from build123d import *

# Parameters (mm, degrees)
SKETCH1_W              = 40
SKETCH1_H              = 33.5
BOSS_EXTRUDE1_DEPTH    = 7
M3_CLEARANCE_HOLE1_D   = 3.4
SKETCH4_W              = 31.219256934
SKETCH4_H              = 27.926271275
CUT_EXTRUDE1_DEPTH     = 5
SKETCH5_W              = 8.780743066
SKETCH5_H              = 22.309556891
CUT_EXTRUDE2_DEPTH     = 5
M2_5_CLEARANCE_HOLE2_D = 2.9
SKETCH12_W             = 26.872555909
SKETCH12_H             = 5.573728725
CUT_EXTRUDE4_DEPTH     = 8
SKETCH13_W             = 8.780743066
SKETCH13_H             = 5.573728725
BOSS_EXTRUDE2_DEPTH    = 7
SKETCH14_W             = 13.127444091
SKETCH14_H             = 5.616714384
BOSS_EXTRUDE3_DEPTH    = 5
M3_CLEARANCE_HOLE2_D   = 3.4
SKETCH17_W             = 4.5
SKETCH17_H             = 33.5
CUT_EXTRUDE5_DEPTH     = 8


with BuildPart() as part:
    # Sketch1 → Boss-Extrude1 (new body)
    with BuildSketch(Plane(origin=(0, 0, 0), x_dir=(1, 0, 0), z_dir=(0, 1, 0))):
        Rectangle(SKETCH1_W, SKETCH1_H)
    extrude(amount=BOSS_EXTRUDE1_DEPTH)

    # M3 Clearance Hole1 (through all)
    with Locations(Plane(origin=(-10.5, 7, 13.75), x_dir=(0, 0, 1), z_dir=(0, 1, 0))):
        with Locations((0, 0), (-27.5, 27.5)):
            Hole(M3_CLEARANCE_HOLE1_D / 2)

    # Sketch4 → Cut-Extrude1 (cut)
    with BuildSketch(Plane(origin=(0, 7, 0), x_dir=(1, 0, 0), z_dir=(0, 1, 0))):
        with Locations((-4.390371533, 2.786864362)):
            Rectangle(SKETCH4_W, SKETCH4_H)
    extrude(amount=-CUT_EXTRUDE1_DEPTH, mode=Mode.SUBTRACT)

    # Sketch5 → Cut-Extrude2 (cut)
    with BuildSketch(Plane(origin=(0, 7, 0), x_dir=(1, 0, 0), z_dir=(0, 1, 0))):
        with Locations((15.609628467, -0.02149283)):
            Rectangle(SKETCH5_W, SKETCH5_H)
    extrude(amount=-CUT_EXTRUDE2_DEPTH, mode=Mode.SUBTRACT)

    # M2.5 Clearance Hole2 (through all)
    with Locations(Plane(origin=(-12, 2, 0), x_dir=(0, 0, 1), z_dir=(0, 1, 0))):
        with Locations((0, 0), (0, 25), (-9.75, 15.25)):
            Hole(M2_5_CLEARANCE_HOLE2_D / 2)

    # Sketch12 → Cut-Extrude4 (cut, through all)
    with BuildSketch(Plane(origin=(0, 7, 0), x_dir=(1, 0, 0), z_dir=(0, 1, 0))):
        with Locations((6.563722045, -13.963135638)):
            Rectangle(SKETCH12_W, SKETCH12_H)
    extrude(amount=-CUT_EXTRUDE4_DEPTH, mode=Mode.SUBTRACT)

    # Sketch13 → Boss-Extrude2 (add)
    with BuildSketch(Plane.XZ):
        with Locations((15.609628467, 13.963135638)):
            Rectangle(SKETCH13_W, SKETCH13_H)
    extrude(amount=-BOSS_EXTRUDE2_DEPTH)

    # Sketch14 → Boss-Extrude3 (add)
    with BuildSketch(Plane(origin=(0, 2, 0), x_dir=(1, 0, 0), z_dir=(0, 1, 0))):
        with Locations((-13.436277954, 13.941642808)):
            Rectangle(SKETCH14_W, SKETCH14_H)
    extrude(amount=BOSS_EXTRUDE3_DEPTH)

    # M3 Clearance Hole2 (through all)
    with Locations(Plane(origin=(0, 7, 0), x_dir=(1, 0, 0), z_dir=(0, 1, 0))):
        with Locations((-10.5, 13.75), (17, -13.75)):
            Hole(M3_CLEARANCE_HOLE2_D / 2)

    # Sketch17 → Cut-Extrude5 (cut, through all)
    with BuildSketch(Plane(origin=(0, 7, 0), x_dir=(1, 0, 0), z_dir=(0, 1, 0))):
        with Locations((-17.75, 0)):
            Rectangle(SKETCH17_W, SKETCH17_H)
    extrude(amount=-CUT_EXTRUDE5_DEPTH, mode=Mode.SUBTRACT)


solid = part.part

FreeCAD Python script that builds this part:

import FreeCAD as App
import Part
import Sketcher
from FreeCAD import Vector

doc = App.newDocument("Part")
params = doc.addObject("Spreadsheet::Sheet", "Params")
for row, (alias, value) in enumerate([
    ("sketch1_width", "40 mm"),
    ("sketch1_height", "33.5 mm"),
    ("pad1_length", "7 mm"),
    ("sketch2_diameter", "3.4 mm"),
    ("hole_diameter", "3.4 mm"),
    ("pocket1_length", "5 mm"),
    ("pocket2_length", "5 mm"),
    ("sketch5_diameter", "2.9 mm"),
    ("hole2_diameter", "2.9 mm"),
    ("pad2_length", "7 mm"),
    ("pad3_length", "5 mm"),
    ("sketch9_diameter", "3.4 mm"),
    ("hole3_diameter", "3.4 mm"),
    ("sketch10_width", "4.5 mm"),
    ("sketch10_height", "33.5 mm"),
], start=1):
    params.set(f"A{row}", alias)
    params.set(f"B{row}", "=" + value)
    params.setAlias(f"B{row}", alias)

body = doc.addObject("PartDesign::Body", "Body")

# Sketch on XZ plane
sketch1 = body.newObject("Sketcher::SketchObject", "Sketch")
sketch1.AttachmentSupport = (doc.getObject("XZ_Plane"), [""])
sketch1.MapMode = "FlatFace"
sketch1.addGeometry([
    Part.LineSegment(Vector(-20, -17, 0), Vector(-20, 17, 0)),
    Part.LineSegment(Vector(-20, 17, 0), Vector(20, 17, 0)),
    Part.LineSegment(Vector(20, 17, 0), Vector(20, -17, 0)),
    Part.LineSegment(Vector(20, -17, 0), Vector(-20, -17, 0)),
], False)
sketch1.addConstraint([
    Sketcher.Constraint("Coincident", 0, 2, 1, 1),
    Sketcher.Constraint("Coincident", 1, 2, 2, 1),
    Sketcher.Constraint("Coincident", 2, 2, 3, 1),
    Sketcher.Constraint("Coincident", 3, 2, 0, 1),
    Sketcher.Constraint("Vertical", 0),
    Sketcher.Constraint("Horizontal", 1),
    Sketcher.Constraint("Vertical", 2),
    Sketcher.Constraint("Horizontal", 3),
    Sketcher.Constraint("Symmetric", 0, 2, 2, 2, -1, 1),
    Sketcher.Constraint("DistanceX", 1, 1, 1, 2, 40.0),
    Sketcher.Constraint("DistanceY", 0, 1, 0, 2, 33.5),
])
sketch1.setExpression("Constraints[9]", "Params.sketch1_width")
sketch1.setExpression("Constraints[10]", "Params.sketch1_height")
pad1 = body.newObject("PartDesign::Pad", "Pad")
pad1.Profile = sketch1
pad1.setExpression("Length", "Params.pad1_length")
pad1.Reversed = True

# Sketch on XZ plane
sketch2 = body.newObject("Sketcher::SketchObject", "Sketch001")
sketch2.AttachmentSupport = (doc.getObject("XZ_Plane"), [""])
sketch2.MapMode = "FlatFace"
sketch2.AttachmentOffset = App.Placement(Vector(0, 0, -7), App.Rotation())
sketch2.addGeometry([
    Part.Circle(Vector(-10.5, 13.8, 0), Vector(0, 0, 1), 1.7),
    Part.Circle(Vector(17, -13.8, 0), Vector(0, 0, 1), 1.7),
], False)
sketch2.addConstraint([
    Sketcher.Constraint("Equal", 0, 1),
    Sketcher.Constraint("Diameter", 0, 3.4),
    Sketcher.Constraint("DistanceX", -1, 1, 1, 3, 17.0),
    Sketcher.Constraint("DistanceX", 0, 3, -1, 1, 10.5),
    Sketcher.Constraint("DistanceY", 1, 3, 0, 3, 27.5),
    Sketcher.Constraint("DistanceY", -1, 1, 0, 3, 13.75),
])
sketch2.setExpression("Constraints[1]", "Params.sketch2_diameter")
doc.recompute()
hole = body.newObject("PartDesign::Hole", "Hole")
hole.Profile = sketch2
hole.ThreadType = "None"
hole.setExpression("Diameter", "Params.hole_diameter")
hole.DepthType = "ThroughAll"
hole.Reversed = True

# Sketch on XZ plane
sketch3 = body.newObject("Sketcher::SketchObject", "Sketch002")
sketch3.AttachmentSupport = (doc.getObject("XZ_Plane"), [""])
sketch3.MapMode = "FlatFace"
sketch3.AttachmentOffset = App.Placement(Vector(0, 0, -7), App.Rotation())
sketch3.addGeometry([
    Part.LineSegment(Vector(-20, -17, 0), Vector(-20, 11, 0)),
    Part.LineSegment(Vector(-20, 11, 0), Vector(11, 11, 0)),
    Part.LineSegment(Vector(11, 11, 0), Vector(11, -17, 0)),
    Part.LineSegment(Vector(11, -17, 0), Vector(-20, -17, 0)),
], False)
sketch3.addConstraint([
    Sketcher.Constraint("Coincident", 0, 2, 1, 1),
    Sketcher.Constraint("Coincident", 1, 2, 2, 1),
    Sketcher.Constraint("Coincident", 2, 2, 3, 1),
    Sketcher.Constraint("Coincident", 3, 2, 0, 1),
    Sketcher.Constraint("Vertical", 0),
    Sketcher.Constraint("Horizontal", 1),
    Sketcher.Constraint("Vertical", 2),
    Sketcher.Constraint("Horizontal", 3),
    Sketcher.Constraint("DistanceX", 0, 2, -1, 1, 20.0),
    Sketcher.Constraint("DistanceY", 2, 2, -1, 1, 16.75),
    Sketcher.Constraint("DistanceY", 0, 1, 0, 2, 27.926271),
    Sketcher.Constraint("DistanceX", 1, 1, 1, 2, 31.219257),
])
pocket1 = body.newObject("PartDesign::Pocket", "Pocket")
pocket1.Profile = sketch3
pocket1.setExpression("Length", "Params.pocket1_length")
pocket1.Reversed = True

# Sketch on XZ plane
sketch4 = body.newObject("Sketcher::SketchObject", "Sketch003")
sketch4.AttachmentSupport = (doc.getObject("XZ_Plane"), [""])
sketch4.MapMode = "FlatFace"
sketch4.AttachmentOffset = App.Placement(Vector(0, 0, -7), App.Rotation())
sketch4.addGeometry([
    Part.LineSegment(Vector(11, -11, 0), Vector(11, 11, 0)),
    Part.LineSegment(Vector(11, 11, 0), Vector(20, 11, 0)),
    Part.LineSegment(Vector(20, 11, 0), Vector(20, -11, 0)),
    Part.LineSegment(Vector(20, -11, 0), Vector(11, -11, 0)),
], False)
sketch4.addConstraint([
    Sketcher.Constraint("Coincident", 0, 2, 1, 1),
    Sketcher.Constraint("Coincident", 1, 2, 2, 1),
    Sketcher.Constraint("Coincident", 2, 2, 3, 1),
    Sketcher.Constraint("Coincident", 3, 2, 0, 1),
    Sketcher.Constraint("Vertical", 0),
    Sketcher.Constraint("Horizontal", 1),
    Sketcher.Constraint("Vertical", 2),
    Sketcher.Constraint("Horizontal", 3),
    Sketcher.Constraint("DistanceX", -1, 1, 1, 2, 20.0),
    Sketcher.Constraint("DistanceX", 1, 1, 1, 2, 8.780743),
    Sketcher.Constraint("DistanceY", 0, 1, 0, 2, 22.309557),
    Sketcher.Constraint("DistanceY", -1, 1, 0, 2, 11.176271),
])
pocket2 = body.newObject("PartDesign::Pocket", "Pocket001")
pocket2.Profile = sketch4
pocket2.setExpression("Length", "Params.pocket2_length")
pocket2.Reversed = True

# Sketch on XZ plane
sketch5 = body.newObject("Sketcher::SketchObject", "Sketch004")
sketch5.AttachmentSupport = (doc.getObject("XZ_Plane"), [""])
sketch5.MapMode = "FlatFace"
sketch5.AttachmentOffset = App.Placement(Vector(0, 0, -2), App.Rotation())
sketch5.addGeometry([
    Part.Circle(Vector(-12, 0, 0), Vector(0, 0, 1), 1.4),
    Part.Circle(Vector(13, 0, 0), Vector(0, 0, 1), 1.4),
    Part.Circle(Vector(3.2, -9.8, 0), Vector(0, 0, 1), 1.4),
], False)
sketch5.addConstraint([
    Sketcher.Constraint("Equal", 0, 1),
    Sketcher.Constraint("Equal", 1, 2),
    Sketcher.Constraint("PointOnObject", 0, 3, -1),
    Sketcher.Constraint("PointOnObject", 1, 3, -1),
    Sketcher.Constraint("Diameter", 0, 2.9),
    Sketcher.Constraint("DistanceX", 0, 3, -1, 1, 12.0),
    Sketcher.Constraint("DistanceX", -1, 1, 1, 3, 13.0),
    Sketcher.Constraint("DistanceX", -1, 1, 2, 3, 3.25),
    Sketcher.Constraint("DistanceY", 2, 3, -1, 1, 9.75),
])
sketch5.setExpression("Constraints[4]", "Params.sketch5_diameter")
doc.recompute()
hole2 = body.newObject("PartDesign::Hole", "Hole001")
hole2.Profile = sketch5
hole2.ThreadType = "None"
hole2.setExpression("Diameter", "Params.hole2_diameter")
hole2.DepthType = "ThroughAll"
hole2.Reversed = True

# Sketch on XZ plane
sketch6 = body.newObject("Sketcher::SketchObject", "Sketch005")
sketch6.AttachmentSupport = (doc.getObject("XZ_Plane"), [""])
sketch6.MapMode = "FlatFace"
sketch6.AttachmentOffset = App.Placement(Vector(0, 0, -7), App.Rotation())
sketch6.addGeometry([
    Part.LineSegment(Vector(-7, 11, 0), Vector(-7, 17, 0)),
    Part.LineSegment(Vector(-7, 17, 0), Vector(20, 17, 0)),
    Part.LineSegment(Vector(20, 17, 0), Vector(20, 11, 0)),
    Part.LineSegment(Vector(20, 11, 0), Vector(-7, 11, 0)),
], False)
sketch6.addConstraint([
    Sketcher.Constraint("Coincident", 0, 2, 1, 1),
    Sketcher.Constraint("Coincident", 1, 2, 2, 1),
    Sketcher.Constraint("Coincident", 2, 2, 3, 1),
    Sketcher.Constraint("Coincident", 3, 2, 0, 1),
    Sketcher.Constraint("Vertical", 0),
    Sketcher.Constraint("Horizontal", 1),
    Sketcher.Constraint("Vertical", 2),
    Sketcher.Constraint("Horizontal", 3),
    Sketcher.Constraint("DistanceX", -1, 1, 1, 2, 20.0),
    Sketcher.Constraint("DistanceY", -1, 1, 0, 2, 16.75),
    Sketcher.Constraint("DistanceY", 0, 1, 0, 2, 5.573729),
    Sketcher.Constraint("DistanceX", 1, 1, 1, 2, 26.872556),
])
pocket3 = body.newObject("PartDesign::Pocket", "Pocket002")
pocket3.Profile = sketch6
pocket3.Type = "ThroughAll"
pocket3.Reversed = True

# Sketch on XZ plane
sketch7 = body.newObject("Sketcher::SketchObject", "Sketch006")
sketch7.AttachmentSupport = (doc.getObject("XZ_Plane"), [""])
sketch7.MapMode = "FlatFace"
sketch7.addGeometry([
    Part.LineSegment(Vector(11, 17, 0), Vector(11, 11, 0)),
    Part.LineSegment(Vector(11, 11, 0), Vector(20, 11, 0)),
    Part.LineSegment(Vector(20, 11, 0), Vector(20, 17, 0)),
    Part.LineSegment(Vector(20, 17, 0), Vector(11, 17, 0)),
], False)
sketch7.addConstraint([
    Sketcher.Constraint("Coincident", 0, 2, 1, 1),
    Sketcher.Constraint("Coincident", 1, 2, 2, 1),
    Sketcher.Constraint("Coincident", 2, 2, 3, 1),
    Sketcher.Constraint("Coincident", 3, 2, 0, 1),
    Sketcher.Constraint("Vertical", 0),
    Sketcher.Constraint("Horizontal", 1),
    Sketcher.Constraint("Vertical", 2),
    Sketcher.Constraint("Horizontal", 3),
    Sketcher.Constraint("DistanceX", -1, 1, 1, 2, 20.0),
    Sketcher.Constraint("DistanceY", -1, 1, 2, 2, 16.75),
    Sketcher.Constraint("DistanceY", 0, 2, 0, 1, 5.573729),
    Sketcher.Constraint("DistanceX", 1, 1, 1, 2, 8.780743),
])
pad2 = body.newObject("PartDesign::Pad", "Pad001")
pad2.Profile = sketch7
pad2.setExpression("Length", "Params.pad2_length")
pad2.Reversed = True

# Sketch on XZ plane
sketch8 = body.newObject("Sketcher::SketchObject", "Sketch007")
sketch8.AttachmentSupport = (doc.getObject("XZ_Plane"), [""])
sketch8.MapMode = "FlatFace"
sketch8.AttachmentOffset = App.Placement(Vector(0, 0, -2), App.Rotation())
sketch8.addGeometry([
    Part.LineSegment(Vector(-20, -17, 0), Vector(-20, -11, 0)),
    Part.LineSegment(Vector(-20, -11, 0), Vector(-7, -11, 0)),
    Part.LineSegment(Vector(-7, -11, 0), Vector(-7, -17, 0)),
    Part.LineSegment(Vector(-7, -17, 0), Vector(-20, -17, 0)),
], False)
sketch8.addConstraint([
    Sketcher.Constraint("Coincident", 0, 2, 1, 1),
    Sketcher.Constraint("Coincident", 1, 2, 2, 1),
    Sketcher.Constraint("Coincident", 2, 2, 3, 1),
    Sketcher.Constraint("Coincident", 3, 2, 0, 1),
    Sketcher.Constraint("Vertical", 0),
    Sketcher.Constraint("Horizontal", 1),
    Sketcher.Constraint("Vertical", 2),
    Sketcher.Constraint("Horizontal", 3),
    Sketcher.Constraint("DistanceX", 0, 2, -1, 1, 20.0),
    Sketcher.Constraint("DistanceY", 2, 2, -1, 1, 16.75),
    Sketcher.Constraint("DistanceX", 1, 1, 1, 2, 13.127444),
    Sketcher.Constraint("DistanceY", 0, 1, 0, 2, 5.616714),
])
pad3 = body.newObject("PartDesign::Pad", "Pad002")
pad3.Profile = sketch8
pad3.setExpression("Length", "Params.pad3_length")
pad3.Reversed = True

# Sketch on XZ plane
sketch9 = body.newObject("Sketcher::SketchObject", "Sketch008")
sketch9.AttachmentSupport = (doc.getObject("XZ_Plane"), [""])
sketch9.MapMode = "FlatFace"
sketch9.AttachmentOffset = App.Placement(Vector(0, 0, -7), App.Rotation())
sketch9.addGeometry([
    Part.Circle(Vector(-10.5, -13.8, 0), Vector(0, 0, 1), 1.7),
    Part.Circle(Vector(17, 13.8, 0), Vector(0, 0, 1), 1.7),
], False)
sketch9.addConstraint([
    Sketcher.Constraint("Equal", 0, 1),
    Sketcher.Constraint("Diameter", 0, 3.4),
    Sketcher.Constraint("DistanceX", -1, 1, 1, 3, 17.0),
    Sketcher.Constraint("DistanceX", 0, 3, -1, 1, 10.5),
    Sketcher.Constraint("DistanceY", 0, 3, 1, 3, 27.5),
    Sketcher.Constraint("DistanceY", 0, 3, -1, 1, 13.75),
])
sketch9.setExpression("Constraints[1]", "Params.sketch9_diameter")
doc.recompute()
hole3 = body.newObject("PartDesign::Hole", "Hole002")
hole3.Profile = sketch9
hole3.ThreadType = "None"
hole3.setExpression("Diameter", "Params.hole3_diameter")
hole3.DepthType = "ThroughAll"
hole3.Reversed = True

# Sketch on XZ plane
sketch10 = body.newObject("Sketcher::SketchObject", "Sketch009")
sketch10.AttachmentSupport = (doc.getObject("XZ_Plane"), [""])
sketch10.MapMode = "FlatFace"
sketch10.AttachmentOffset = App.Placement(Vector(0, 0, -7), App.Rotation())
sketch10.addGeometry([
    Part.LineSegment(Vector(-20, -16.8, 0), Vector(-20, 16.8, 0)),
    Part.LineSegment(Vector(-20, 16.8, 0), Vector(-15.5, 16.8, 0)),
    Part.LineSegment(Vector(-15.5, 16.8, 0), Vector(-15.5, -16.8, 0)),
    Part.LineSegment(Vector(-15.5, -16.8, 0), Vector(-20, -16.8, 0)),
], False)
sketch10.addConstraint([
    Sketcher.Constraint("Coincident", 0, 2, 1, 1),
    Sketcher.Constraint("Coincident", 1, 2, 2, 1),
    Sketcher.Constraint("Coincident", 2, 2, 3, 1),
    Sketcher.Constraint("Coincident", 3, 2, 0, 1),
    Sketcher.Constraint("Vertical", 0),
    Sketcher.Constraint("Horizontal", 1),
    Sketcher.Constraint("Vertical", 2),
    Sketcher.Constraint("Horizontal", 3),
    Sketcher.Constraint("DistanceX", 1, 1, 1, 2, 4.5),
    Sketcher.Constraint("DistanceY", 0, 1, 0, 2, 33.5),
    Sketcher.Constraint("DistanceX", 0, 2, -1, 1, 20.0),
    Sketcher.Constraint("DistanceY", -1, 1, 0, 2, 16.75),
])
sketch10.setExpression("Constraints[8]", "Params.sketch10_width")
sketch10.setExpression("Constraints[9]", "Params.sketch10_height")
pocket4 = body.newObject("PartDesign::Pocket", "Pocket003")
pocket4.Profile = sketch10
pocket4.Type = "ThroughAll"
pocket4.Reversed = True

doc.recompute()
